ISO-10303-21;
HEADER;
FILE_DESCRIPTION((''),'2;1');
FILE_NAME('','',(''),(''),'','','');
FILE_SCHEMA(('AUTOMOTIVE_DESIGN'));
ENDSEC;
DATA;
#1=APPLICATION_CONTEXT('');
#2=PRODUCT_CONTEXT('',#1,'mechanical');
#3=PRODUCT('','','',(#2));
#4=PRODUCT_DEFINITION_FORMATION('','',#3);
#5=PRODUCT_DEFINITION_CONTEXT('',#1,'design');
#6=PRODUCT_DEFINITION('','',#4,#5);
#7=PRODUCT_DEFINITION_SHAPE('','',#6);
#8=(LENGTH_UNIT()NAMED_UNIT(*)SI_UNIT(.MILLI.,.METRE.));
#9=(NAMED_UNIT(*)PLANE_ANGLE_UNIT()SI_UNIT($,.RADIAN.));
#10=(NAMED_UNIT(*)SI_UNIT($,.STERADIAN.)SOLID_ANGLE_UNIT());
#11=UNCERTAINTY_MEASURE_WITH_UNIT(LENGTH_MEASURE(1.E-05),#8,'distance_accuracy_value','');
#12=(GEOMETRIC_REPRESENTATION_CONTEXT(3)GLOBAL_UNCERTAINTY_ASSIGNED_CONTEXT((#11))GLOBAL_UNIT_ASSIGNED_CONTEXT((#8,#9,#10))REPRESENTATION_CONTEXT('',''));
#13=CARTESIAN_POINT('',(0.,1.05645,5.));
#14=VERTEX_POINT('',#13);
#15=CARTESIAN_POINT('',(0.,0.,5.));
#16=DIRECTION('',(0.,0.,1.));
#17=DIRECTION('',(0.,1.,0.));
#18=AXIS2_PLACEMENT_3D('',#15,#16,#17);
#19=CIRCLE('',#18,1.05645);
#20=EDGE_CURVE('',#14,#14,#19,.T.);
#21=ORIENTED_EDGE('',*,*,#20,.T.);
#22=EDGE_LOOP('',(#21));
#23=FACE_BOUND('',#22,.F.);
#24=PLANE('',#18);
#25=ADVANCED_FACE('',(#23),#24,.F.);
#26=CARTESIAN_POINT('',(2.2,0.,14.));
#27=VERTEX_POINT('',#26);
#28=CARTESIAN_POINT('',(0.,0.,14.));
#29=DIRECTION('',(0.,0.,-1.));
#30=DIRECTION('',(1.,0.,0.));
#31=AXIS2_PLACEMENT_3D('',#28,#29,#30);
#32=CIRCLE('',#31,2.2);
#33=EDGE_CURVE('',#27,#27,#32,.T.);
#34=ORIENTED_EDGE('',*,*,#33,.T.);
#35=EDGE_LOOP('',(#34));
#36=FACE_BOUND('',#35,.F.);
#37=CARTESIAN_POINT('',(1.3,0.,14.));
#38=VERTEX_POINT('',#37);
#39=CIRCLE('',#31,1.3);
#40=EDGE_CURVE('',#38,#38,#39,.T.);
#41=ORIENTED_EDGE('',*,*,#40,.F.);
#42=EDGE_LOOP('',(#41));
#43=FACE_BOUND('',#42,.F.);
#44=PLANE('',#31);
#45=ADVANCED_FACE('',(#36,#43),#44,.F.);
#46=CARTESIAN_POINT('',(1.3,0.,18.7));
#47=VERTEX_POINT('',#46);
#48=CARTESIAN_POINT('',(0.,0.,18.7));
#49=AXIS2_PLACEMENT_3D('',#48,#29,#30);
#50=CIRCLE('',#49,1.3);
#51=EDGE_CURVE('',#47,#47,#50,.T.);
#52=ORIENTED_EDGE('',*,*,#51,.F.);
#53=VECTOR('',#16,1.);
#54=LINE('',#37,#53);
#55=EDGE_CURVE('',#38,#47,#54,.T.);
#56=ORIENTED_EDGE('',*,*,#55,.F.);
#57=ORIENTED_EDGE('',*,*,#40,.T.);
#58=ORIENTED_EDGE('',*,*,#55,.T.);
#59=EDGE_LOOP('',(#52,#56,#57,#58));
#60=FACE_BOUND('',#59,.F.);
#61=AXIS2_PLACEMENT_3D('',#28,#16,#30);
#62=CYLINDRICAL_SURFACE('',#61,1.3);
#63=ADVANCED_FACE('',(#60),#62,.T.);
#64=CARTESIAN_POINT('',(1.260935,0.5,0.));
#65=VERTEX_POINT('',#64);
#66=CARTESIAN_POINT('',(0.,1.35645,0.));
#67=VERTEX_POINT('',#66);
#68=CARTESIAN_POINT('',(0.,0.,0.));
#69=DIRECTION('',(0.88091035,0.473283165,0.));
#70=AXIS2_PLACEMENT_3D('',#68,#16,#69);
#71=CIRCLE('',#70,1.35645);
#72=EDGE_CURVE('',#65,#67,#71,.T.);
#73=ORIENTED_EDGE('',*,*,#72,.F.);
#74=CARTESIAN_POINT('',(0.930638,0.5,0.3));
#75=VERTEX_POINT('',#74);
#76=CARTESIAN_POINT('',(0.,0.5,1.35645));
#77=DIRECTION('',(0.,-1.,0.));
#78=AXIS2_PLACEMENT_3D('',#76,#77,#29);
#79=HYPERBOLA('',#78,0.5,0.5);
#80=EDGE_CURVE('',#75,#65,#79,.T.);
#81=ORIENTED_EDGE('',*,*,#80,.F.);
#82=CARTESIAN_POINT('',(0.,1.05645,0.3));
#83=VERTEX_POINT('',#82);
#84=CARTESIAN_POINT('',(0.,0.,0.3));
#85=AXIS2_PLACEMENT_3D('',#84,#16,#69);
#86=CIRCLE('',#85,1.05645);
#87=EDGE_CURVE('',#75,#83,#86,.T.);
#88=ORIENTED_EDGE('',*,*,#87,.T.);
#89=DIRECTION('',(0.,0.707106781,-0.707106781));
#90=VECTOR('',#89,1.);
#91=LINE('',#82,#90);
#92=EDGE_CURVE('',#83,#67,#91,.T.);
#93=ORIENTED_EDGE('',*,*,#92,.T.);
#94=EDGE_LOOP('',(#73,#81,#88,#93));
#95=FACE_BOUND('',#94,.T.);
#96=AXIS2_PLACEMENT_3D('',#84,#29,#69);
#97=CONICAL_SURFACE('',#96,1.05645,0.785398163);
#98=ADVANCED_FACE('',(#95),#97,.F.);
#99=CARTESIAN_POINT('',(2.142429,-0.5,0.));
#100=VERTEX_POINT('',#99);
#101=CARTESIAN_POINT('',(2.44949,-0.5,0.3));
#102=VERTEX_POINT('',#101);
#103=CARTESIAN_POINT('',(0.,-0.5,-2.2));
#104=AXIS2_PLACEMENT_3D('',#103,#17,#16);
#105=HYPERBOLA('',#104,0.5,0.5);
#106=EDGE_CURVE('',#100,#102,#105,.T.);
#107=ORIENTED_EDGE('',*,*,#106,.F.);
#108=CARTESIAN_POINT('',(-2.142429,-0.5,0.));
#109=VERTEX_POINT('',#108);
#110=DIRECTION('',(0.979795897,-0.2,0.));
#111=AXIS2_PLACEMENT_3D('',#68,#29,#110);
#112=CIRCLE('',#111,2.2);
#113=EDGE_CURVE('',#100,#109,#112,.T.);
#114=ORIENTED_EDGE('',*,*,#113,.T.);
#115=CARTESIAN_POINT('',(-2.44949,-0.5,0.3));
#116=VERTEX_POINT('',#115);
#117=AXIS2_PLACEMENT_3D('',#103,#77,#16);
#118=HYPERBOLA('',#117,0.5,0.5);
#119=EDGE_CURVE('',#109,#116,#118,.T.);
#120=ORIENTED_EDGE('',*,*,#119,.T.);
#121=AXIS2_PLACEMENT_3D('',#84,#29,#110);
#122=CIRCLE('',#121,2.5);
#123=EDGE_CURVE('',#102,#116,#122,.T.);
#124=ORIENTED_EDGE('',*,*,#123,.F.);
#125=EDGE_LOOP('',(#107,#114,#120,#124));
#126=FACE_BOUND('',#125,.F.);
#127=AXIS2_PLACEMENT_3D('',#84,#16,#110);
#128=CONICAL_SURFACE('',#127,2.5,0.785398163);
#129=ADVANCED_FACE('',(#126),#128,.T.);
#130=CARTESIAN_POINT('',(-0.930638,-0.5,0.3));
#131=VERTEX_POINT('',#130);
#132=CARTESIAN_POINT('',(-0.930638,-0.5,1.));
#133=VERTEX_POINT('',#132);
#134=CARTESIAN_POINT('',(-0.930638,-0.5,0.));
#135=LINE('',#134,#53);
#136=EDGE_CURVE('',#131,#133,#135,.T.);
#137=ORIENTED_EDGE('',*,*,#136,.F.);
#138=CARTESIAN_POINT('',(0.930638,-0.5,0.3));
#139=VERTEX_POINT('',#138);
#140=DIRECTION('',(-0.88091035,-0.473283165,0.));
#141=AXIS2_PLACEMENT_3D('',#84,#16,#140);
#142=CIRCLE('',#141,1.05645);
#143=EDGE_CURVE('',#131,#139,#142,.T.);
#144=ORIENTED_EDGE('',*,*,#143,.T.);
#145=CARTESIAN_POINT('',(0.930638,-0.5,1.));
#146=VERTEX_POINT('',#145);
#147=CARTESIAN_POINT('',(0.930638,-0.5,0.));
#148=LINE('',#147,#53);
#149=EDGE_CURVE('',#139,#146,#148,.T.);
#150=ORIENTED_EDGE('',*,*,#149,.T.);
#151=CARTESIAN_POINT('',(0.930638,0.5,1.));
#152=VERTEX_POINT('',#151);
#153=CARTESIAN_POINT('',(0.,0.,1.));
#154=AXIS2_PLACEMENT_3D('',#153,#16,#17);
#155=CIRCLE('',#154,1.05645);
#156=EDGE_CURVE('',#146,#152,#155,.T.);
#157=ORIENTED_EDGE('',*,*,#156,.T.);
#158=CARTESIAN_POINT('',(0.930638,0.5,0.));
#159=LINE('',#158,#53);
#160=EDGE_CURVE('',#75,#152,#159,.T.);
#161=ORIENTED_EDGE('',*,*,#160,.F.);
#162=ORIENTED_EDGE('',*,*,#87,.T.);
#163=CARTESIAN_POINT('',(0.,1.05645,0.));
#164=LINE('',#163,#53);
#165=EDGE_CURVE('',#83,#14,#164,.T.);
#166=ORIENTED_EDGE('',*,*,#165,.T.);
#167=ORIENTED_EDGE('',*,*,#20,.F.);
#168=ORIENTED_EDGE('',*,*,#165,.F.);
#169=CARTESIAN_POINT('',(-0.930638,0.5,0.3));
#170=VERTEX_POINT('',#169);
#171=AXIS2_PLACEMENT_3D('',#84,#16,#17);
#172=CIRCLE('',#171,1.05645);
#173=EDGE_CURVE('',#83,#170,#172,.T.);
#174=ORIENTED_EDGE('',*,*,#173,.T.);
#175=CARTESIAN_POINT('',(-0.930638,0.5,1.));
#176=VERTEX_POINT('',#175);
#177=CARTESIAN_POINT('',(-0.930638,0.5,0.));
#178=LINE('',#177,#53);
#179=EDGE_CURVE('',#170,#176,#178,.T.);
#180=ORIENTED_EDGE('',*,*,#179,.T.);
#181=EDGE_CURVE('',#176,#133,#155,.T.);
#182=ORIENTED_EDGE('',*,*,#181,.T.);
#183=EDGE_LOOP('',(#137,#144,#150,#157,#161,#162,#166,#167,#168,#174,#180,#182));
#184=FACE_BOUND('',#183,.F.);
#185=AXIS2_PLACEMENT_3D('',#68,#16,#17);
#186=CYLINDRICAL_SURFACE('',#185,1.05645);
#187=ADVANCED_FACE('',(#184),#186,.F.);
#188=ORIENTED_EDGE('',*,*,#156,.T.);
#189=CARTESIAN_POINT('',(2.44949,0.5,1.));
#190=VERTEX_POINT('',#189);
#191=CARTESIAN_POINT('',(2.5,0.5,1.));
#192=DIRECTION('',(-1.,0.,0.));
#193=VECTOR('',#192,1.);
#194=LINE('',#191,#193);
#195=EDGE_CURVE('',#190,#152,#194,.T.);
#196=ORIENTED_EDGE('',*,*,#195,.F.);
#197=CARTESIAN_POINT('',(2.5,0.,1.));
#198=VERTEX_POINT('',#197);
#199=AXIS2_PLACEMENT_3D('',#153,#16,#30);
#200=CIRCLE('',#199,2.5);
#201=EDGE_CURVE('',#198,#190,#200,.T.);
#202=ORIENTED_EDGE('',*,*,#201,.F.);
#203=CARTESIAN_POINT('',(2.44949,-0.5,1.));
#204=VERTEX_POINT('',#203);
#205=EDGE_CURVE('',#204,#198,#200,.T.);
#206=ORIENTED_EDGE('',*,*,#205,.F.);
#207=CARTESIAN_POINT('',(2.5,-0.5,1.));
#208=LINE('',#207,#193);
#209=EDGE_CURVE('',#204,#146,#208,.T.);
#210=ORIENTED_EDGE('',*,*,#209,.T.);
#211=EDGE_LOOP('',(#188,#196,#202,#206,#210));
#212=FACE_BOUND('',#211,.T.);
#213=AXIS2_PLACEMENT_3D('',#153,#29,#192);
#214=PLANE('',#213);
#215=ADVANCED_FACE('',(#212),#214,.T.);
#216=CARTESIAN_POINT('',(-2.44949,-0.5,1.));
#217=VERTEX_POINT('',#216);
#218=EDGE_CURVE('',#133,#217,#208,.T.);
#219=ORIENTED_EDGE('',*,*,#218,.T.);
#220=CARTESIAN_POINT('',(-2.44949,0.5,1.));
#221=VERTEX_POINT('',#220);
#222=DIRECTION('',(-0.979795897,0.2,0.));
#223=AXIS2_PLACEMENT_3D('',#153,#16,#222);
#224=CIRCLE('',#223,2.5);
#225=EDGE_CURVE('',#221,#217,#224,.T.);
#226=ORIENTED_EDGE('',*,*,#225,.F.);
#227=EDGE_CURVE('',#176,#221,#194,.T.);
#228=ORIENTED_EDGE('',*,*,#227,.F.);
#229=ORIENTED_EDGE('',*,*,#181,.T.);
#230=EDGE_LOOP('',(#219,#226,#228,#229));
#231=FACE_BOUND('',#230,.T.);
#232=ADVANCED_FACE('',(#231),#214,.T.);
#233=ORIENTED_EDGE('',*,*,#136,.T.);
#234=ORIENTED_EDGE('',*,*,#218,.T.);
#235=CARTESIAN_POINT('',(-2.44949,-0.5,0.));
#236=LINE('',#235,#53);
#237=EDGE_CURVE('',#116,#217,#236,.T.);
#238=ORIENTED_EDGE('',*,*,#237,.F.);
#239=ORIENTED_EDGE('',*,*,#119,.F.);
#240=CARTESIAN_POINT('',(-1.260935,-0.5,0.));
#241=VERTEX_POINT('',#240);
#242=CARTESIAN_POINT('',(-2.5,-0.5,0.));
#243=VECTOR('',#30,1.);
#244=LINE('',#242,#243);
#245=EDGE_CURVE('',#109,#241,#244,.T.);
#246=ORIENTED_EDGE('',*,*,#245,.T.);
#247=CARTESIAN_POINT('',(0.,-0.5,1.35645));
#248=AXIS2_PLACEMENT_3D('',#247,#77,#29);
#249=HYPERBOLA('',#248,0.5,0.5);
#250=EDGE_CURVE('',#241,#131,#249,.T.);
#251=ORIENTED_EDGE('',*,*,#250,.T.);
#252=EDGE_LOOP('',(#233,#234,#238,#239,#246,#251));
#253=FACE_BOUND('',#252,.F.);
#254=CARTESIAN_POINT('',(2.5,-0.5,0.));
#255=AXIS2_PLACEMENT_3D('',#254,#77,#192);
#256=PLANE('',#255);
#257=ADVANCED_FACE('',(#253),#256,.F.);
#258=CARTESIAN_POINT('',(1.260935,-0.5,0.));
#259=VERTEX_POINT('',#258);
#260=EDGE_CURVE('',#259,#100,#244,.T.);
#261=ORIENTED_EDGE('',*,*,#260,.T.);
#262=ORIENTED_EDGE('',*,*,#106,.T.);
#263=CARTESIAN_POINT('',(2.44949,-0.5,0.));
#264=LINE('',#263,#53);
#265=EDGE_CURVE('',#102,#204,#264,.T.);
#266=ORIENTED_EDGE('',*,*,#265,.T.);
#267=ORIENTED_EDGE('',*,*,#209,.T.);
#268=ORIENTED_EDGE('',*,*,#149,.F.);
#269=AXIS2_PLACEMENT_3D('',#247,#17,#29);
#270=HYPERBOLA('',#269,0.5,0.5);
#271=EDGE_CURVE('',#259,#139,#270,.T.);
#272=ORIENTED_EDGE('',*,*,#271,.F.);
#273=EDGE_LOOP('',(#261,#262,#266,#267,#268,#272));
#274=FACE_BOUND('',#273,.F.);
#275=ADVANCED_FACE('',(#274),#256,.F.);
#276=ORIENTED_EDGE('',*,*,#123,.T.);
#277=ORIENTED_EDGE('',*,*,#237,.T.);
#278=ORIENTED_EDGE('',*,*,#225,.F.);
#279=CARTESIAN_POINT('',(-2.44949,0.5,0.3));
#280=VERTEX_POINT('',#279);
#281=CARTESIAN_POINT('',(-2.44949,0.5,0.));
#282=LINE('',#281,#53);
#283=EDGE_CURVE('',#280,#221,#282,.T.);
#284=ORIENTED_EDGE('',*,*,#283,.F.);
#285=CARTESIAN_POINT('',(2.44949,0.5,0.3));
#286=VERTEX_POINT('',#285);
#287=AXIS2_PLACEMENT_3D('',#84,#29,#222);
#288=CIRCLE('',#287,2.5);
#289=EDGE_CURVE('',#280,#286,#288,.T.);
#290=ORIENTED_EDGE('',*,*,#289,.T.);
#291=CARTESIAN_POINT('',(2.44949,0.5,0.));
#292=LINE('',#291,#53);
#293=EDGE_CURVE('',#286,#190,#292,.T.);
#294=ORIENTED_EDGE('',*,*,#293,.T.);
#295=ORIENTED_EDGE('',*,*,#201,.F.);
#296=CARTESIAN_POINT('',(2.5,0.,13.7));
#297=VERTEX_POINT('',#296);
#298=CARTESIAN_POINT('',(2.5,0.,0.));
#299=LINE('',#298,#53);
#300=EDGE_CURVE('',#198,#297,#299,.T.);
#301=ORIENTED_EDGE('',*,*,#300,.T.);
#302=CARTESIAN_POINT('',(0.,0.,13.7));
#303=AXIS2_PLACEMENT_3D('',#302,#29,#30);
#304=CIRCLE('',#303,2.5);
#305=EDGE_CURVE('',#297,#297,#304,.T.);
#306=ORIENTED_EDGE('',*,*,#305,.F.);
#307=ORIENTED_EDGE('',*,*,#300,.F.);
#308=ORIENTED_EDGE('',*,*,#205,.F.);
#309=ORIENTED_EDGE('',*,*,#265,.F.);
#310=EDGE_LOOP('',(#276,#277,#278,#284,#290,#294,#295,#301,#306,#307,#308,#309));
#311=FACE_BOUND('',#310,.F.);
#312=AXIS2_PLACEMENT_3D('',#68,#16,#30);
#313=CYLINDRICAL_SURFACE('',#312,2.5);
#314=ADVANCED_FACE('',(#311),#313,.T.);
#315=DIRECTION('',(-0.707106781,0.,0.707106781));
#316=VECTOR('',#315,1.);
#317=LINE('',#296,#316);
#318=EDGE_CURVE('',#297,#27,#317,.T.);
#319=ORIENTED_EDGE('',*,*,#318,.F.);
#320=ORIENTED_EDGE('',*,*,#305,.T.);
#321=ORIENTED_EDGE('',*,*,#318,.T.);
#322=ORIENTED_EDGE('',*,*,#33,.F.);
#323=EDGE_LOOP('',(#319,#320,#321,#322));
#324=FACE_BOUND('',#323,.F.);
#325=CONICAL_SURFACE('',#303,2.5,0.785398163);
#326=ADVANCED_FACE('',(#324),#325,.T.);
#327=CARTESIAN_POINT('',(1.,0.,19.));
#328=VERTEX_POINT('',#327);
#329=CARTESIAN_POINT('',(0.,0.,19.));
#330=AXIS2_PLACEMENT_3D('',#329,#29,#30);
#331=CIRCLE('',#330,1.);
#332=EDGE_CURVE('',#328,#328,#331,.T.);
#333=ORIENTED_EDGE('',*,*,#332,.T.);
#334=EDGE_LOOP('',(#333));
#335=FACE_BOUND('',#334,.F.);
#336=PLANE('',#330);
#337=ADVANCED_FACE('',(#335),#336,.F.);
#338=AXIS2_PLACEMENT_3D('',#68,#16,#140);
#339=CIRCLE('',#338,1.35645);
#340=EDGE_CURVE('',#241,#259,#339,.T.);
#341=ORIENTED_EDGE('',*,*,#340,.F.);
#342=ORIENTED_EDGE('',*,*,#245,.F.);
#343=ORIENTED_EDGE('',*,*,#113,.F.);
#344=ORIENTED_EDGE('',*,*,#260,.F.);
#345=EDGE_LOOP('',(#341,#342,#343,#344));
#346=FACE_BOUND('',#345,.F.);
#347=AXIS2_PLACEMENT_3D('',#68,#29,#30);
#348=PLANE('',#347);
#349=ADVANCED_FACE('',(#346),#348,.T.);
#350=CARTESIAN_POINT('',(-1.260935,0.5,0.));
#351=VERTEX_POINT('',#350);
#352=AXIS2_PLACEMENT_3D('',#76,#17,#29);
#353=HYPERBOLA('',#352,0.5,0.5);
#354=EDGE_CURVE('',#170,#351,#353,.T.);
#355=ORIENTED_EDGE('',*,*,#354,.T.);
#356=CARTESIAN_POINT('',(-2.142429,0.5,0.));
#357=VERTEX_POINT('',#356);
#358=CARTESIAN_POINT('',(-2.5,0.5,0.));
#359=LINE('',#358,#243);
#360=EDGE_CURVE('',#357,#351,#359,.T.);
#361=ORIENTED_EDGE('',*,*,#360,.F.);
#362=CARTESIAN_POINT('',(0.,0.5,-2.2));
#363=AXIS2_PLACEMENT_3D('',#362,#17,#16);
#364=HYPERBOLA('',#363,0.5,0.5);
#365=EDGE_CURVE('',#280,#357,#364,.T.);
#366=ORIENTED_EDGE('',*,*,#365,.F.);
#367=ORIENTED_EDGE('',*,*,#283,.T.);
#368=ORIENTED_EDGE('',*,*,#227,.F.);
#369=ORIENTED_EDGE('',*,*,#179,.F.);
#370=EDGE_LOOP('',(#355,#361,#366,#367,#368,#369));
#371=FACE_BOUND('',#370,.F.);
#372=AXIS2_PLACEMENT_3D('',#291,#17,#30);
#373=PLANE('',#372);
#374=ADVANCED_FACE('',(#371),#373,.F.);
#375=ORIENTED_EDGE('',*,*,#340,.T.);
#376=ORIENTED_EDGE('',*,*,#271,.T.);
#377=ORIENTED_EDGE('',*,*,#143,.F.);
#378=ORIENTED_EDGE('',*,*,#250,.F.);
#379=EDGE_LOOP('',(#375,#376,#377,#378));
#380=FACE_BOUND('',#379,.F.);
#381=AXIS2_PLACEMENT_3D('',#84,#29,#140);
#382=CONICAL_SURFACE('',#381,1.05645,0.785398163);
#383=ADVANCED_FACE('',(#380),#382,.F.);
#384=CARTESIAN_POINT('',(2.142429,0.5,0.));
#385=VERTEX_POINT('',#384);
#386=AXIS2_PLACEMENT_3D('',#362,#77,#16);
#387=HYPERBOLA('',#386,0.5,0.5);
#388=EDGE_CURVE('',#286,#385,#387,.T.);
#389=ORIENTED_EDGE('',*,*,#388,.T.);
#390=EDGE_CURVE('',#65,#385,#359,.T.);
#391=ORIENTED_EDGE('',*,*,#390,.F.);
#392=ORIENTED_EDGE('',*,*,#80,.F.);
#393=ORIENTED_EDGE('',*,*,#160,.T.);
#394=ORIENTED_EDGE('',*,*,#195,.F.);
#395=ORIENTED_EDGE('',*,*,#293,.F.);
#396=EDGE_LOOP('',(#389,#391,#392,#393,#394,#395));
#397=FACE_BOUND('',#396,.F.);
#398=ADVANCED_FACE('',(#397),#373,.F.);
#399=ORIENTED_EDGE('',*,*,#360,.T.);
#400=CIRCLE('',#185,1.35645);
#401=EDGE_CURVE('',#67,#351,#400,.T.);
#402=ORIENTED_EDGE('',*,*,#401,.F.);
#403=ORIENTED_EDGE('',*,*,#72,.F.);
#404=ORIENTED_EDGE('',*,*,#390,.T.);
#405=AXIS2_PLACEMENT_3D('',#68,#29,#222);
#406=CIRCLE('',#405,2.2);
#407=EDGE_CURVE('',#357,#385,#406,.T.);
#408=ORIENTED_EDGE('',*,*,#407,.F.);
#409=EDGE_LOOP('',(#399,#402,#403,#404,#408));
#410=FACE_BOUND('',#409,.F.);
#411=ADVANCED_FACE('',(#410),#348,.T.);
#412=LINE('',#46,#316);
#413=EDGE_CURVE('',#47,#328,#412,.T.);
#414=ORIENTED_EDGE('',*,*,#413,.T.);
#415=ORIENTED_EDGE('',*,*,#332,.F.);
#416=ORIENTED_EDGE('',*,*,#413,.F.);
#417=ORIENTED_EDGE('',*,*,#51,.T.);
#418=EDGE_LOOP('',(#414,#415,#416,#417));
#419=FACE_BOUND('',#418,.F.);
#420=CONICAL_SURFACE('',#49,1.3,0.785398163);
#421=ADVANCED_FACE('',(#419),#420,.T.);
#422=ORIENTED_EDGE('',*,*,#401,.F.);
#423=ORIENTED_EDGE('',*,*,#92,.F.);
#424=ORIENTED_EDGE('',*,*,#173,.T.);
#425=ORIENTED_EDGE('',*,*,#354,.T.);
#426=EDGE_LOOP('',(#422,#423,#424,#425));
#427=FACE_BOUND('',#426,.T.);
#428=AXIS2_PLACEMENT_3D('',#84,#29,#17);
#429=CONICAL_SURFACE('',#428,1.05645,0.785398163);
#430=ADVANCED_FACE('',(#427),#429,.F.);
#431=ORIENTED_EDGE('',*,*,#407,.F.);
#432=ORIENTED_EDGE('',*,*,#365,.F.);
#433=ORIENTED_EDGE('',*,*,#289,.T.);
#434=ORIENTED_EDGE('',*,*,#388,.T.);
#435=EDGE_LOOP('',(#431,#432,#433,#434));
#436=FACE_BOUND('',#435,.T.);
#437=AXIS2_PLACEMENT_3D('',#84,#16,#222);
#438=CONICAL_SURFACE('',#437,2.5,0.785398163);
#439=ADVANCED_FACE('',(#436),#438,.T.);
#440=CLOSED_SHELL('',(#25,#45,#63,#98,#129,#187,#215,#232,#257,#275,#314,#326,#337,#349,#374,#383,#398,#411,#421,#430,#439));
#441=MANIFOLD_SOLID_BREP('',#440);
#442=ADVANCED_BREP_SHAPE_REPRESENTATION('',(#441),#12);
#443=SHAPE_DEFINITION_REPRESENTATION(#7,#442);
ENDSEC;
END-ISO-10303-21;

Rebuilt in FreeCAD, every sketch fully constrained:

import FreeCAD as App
import Part
import Sketcher


def edges_at(feature, points):
    """Names of the edges that pass closest to the given points."""
    edges = feature.Shape.Edges
    near = lambda p: min(range(len(edges)), key=lambda i: edges[i].distToShape(Part.Vertex(*p))[0])
    return sorted({f"Edge{near(p) + 1}" for p in points})


def add_polygon(sketch, points):
    """Adds a closed chain of lines whose ends are joined by coincident constraints."""
    first, n = sketch.GeometryCount, len(points)
    for a, b in zip(points, points[1:] + points[:1]):
        sketch.addGeometry(Part.LineSegment(App.Vector(*a, 0), App.Vector(*b, 0)), False)
    for i in range(n):
        sketch.addConstraint(Sketcher.Constraint("Coincident", first + i, 2, first + (i + 1) % n, 1))

doc = App.newDocument("Part")
params = doc.addObject("Spreadsheet::Sheet", "Params")
for row, (alias, value) in enumerate([
    ("sketch1_height", "5 mm"),
    ("sketch1_height2", "14 mm"),
    ("sketch1_width", "2.5 mm"),
    ("sketch1_width2", "1.3 mm"),
    ("revolution_angle", "360 deg"),
    ("sketch2_height", "1 mm"),
    ("sketch2_width", "5 mm"),
    ("pocket1_length", "1 mm"),
    ("hole_diameter", "2.1129 mm"),
    ("hole_depth", "5 mm"),
    ("chamfer_size", "0.3 mm"),
], start=1):
    params.set(f"A{row}", alias)
    params.set(f"B{row}", "=" + value)
    params.setAlias(f"B{row}", alias)

body = doc.addObject("PartDesign::Body", "Body")

# Sketch on XZ plane
sketch1 = body.newObject("Sketcher::SketchObject", "Sketch")
sketch1.AttachmentSupport = (doc.getObject("XZ_Plane"), [""])
sketch1.MapMode = "FlatFace"
add_polygon(sketch1, [(2.5, 0), (0, 0), (0, 19), (1.3, 19), (1.3, 14), (2.5, 14)])  # lines 0-5
sketch1.addConstraint([
    Sketcher.Constraint("Horizontal", 0),
    Sketcher.Constraint("Vertical", 1),
    Sketcher.Constraint("Horizontal", 2),
    Sketcher.Constraint("Vertical", 3),
    Sketcher.Constraint("Horizontal", 4),
    Sketcher.Constraint("Vertical", 5),
    Sketcher.Constraint("Coincident", 0, 2, -1, 1),
    Sketcher.Constraint("DistanceY", 3, 2, 3, 1, 5.0),
    Sketcher.Constraint("DistanceY", 5, 2, 5, 1, 14.0),
    Sketcher.Constraint("DistanceX", 0, 2, 0, 1, 2.5),
    Sketcher.Constraint("DistanceX", 2, 1, 2, 2, 1.3),
])
sketch1.setExpression("Constraints[13]", "Params.sketch1_height")
sketch1.setExpression("Constraints[14]", "Params.sketch1_height2")
sketch1.setExpression("Constraints[15]", "Params.sketch1_width")
sketch1.setExpression("Constraints[16]", "Params.sketch1_width2")
revolution = body.newObject("PartDesign::Revolution", "Revolution")
revolution.Profile = sketch1
revolution.ReferenceAxis = (sketch1, ["V_Axis"])
revolution.setExpression("Angle", "Params.revolution_angle")

# Sketch on XY plane
sketch2 = body.newObject("Sketcher::SketchObject", "Sketch001")
sketch2.AttachmentSupport = (doc.getObject("XY_Plane"), [""])
sketch2.MapMode = "FlatFace"
add_polygon(sketch2, [(2.5, -0.5), (-2.5, -0.5), (-2.5, 0.5), (2.5, 0.5)])  # lines 0-3
sketch2.addConstraint([
    Sketcher.Constraint("Horizontal", 0),
    Sketcher.Constraint("Vertical", 1),
    Sketcher.Constraint("Horizontal", 2),
    Sketcher.Constraint("Vertical", 3),
    Sketcher.Constraint("Symmetric", 0, 2, 2, 2, -1, 1),
    Sketcher.Constraint("DistanceY", 1, 1, 1, 2, 1.0),
    Sketcher.Constraint("DistanceX", 0, 2, 0, 1, 5.0),
])
sketch2.setExpression("Constraints[9]", "Params.sketch2_height")
sketch2.setExpression("Constraints[10]", "Params.sketch2_width")
pocket1 = body.newObject("PartDesign::Pocket", "Pocket")
pocket1.Profile = sketch2
pocket1.setExpression("Length", "Params.pocket1_length")
pocket1.Reversed = True

# Sketch on XY plane
sketch3 = body.newObject("Sketcher::SketchObject", "Sketch002")
sketch3.AttachmentSupport = (doc.getObject("XY_Plane"), [""])
sketch3.MapMode = "FlatFace"
sketch3.addGeometry(Part.Circle(App.Vector(0, 0, 0), App.Vector(0, 0, 1), 1.1), False)
sketch3.addConstraint([
    Sketcher.Constraint("Coincident", 0, 3, -1, 1),
    Sketcher.Constraint("Diameter", 0, 2.113),
])
doc.recompute()
hole = body.newObject("PartDesign::Hole", "Hole")
hole.Profile = sketch3
hole.ThreadType = "None"
hole.setExpression("Diameter", "Params.hole_diameter")
hole.DepthType = "Dimension"
hole.setExpression("Depth", "Params.hole_depth")
hole.DrillPoint = "Flat"
hole.Reversed = True
doc.recompute()

chamfer = body.newObject("PartDesign::Chamfer", "Chamfer")
chamfer.Base = (hole, edges_at(hole, [
    (-2.5, 0, 14),
    (0, 2.5, 0),
    (0, -2.5, 0),
    (0, -1.056, 0),
    (-0.542, 0.907, 0),
    (0.542, 0.907, 0),
    (-1.3, 0, 19),
]))
chamfer.setExpression("Size", "Params.chamfer_size")

doc.recompute()
